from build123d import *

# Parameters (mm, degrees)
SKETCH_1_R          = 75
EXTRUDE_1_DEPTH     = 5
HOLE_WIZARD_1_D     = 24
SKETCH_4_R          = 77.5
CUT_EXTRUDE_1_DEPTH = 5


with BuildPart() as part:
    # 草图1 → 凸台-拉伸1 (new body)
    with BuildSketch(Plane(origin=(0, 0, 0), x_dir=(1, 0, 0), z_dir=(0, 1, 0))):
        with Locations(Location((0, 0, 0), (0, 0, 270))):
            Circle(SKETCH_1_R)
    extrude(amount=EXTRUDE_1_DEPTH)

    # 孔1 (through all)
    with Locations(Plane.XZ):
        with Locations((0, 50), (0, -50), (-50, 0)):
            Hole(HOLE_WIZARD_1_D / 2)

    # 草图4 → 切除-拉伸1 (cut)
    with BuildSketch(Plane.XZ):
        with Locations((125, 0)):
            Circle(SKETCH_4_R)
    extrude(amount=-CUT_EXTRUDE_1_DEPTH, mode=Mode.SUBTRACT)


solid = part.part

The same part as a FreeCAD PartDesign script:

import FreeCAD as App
import Part
import Sketcher
from FreeCAD import Vector

doc = App.newDocument("Part")
body = doc.addObject("PartDesign::Body", "Body")

# Sketch on XZ plane
sketch1 = body.newObject("Sketcher::SketchObject", "Sketch")
sketch1.AttachmentSupport = (doc.getObject("XZ_Plane"), [""])
sketch1.MapMode = "FlatFace"
sketch1.addGeometry(Part.Circle(Vector(0, 0, 0), Vector(0, 0, 1), 75), False)
sketch1.addConstraint([
    Sketcher.Constraint("Coincident", 0, 3, -1, 1),
    Sketcher.Constraint("Diameter", 0, 150.0),
])
pad1 = body.newObject("PartDesign::Pad", "Pad")
pad1.Profile = sketch1
pad1.Length = 5
pad1.Reversed = True

# Sketch on XZ plane
sketch2 = body.newObject("Sketcher::SketchObject", "Sketch001")
sketch2.AttachmentSupport = (doc.getObject("XZ_Plane"), [""])
sketch2.MapMode = "FlatFace"
sketch2.addGeometry([
    Part.Circle(Vector(0, 50, 0), Vector(0, 0, 1), 12),
    Part.Circle(Vector(0, -50, 0), Vector(0, 0, 1), 12),
    Part.Circle(Vector(-50, 0, 0), Vector(0, 0, 1), 12),
], False)
sketch2.addConstraint([
    Sketcher.Constraint("Equal", 0, 1),
    Sketcher.Constraint("Equal", 1, 2),
    Sketcher.Constraint("Symmetric", 0, 3, 1, 3, -1, 1),
    Sketcher.Constraint("PointOnObject", 0, 3, -2),
    Sketcher.Constraint("PointOnObject", 2, 3, -1),
    Sketcher.Constraint("Diameter", 0, 24.0),
    Sketcher.Constraint("DistanceY", -1, 1, 0, 3, 50.0),
    Sketcher.Constraint("DistanceX", 2, 3, -1, 1, 50.0),
])
doc.recompute()
hole = body.newObject("PartDesign::Hole", "Hole")
hole.Profile = sketch2
hole.ThreadType = "None"
hole.Diameter = 24
hole.DepthType = "ThroughAll"

# Sketch on XZ plane
sketch3 = body.newObject("Sketcher::SketchObject", "Sketch002")
sketch3.AttachmentSupport = (doc.getObject("XZ_Plane"), [""])
sketch3.MapMode = "FlatFace"
sketch3.addGeometry(Part.Circle(Vector(125, 0, 0), Vector(0, 0, 1), 78), False)
sketch3.addConstraint([
    Sketcher.Constraint("PointOnObject", 0, 3, -1),
    Sketcher.Constraint("Diameter", 0, 155.0),
    Sketcher.Constraint("DistanceX", -1, 1, 0, 3, 125.0),
])
pocket1 = body.newObject("PartDesign::Pocket", "Pocket")
pocket1.Profile = sketch3
pocket1.Length = 5

doc.recompute()
